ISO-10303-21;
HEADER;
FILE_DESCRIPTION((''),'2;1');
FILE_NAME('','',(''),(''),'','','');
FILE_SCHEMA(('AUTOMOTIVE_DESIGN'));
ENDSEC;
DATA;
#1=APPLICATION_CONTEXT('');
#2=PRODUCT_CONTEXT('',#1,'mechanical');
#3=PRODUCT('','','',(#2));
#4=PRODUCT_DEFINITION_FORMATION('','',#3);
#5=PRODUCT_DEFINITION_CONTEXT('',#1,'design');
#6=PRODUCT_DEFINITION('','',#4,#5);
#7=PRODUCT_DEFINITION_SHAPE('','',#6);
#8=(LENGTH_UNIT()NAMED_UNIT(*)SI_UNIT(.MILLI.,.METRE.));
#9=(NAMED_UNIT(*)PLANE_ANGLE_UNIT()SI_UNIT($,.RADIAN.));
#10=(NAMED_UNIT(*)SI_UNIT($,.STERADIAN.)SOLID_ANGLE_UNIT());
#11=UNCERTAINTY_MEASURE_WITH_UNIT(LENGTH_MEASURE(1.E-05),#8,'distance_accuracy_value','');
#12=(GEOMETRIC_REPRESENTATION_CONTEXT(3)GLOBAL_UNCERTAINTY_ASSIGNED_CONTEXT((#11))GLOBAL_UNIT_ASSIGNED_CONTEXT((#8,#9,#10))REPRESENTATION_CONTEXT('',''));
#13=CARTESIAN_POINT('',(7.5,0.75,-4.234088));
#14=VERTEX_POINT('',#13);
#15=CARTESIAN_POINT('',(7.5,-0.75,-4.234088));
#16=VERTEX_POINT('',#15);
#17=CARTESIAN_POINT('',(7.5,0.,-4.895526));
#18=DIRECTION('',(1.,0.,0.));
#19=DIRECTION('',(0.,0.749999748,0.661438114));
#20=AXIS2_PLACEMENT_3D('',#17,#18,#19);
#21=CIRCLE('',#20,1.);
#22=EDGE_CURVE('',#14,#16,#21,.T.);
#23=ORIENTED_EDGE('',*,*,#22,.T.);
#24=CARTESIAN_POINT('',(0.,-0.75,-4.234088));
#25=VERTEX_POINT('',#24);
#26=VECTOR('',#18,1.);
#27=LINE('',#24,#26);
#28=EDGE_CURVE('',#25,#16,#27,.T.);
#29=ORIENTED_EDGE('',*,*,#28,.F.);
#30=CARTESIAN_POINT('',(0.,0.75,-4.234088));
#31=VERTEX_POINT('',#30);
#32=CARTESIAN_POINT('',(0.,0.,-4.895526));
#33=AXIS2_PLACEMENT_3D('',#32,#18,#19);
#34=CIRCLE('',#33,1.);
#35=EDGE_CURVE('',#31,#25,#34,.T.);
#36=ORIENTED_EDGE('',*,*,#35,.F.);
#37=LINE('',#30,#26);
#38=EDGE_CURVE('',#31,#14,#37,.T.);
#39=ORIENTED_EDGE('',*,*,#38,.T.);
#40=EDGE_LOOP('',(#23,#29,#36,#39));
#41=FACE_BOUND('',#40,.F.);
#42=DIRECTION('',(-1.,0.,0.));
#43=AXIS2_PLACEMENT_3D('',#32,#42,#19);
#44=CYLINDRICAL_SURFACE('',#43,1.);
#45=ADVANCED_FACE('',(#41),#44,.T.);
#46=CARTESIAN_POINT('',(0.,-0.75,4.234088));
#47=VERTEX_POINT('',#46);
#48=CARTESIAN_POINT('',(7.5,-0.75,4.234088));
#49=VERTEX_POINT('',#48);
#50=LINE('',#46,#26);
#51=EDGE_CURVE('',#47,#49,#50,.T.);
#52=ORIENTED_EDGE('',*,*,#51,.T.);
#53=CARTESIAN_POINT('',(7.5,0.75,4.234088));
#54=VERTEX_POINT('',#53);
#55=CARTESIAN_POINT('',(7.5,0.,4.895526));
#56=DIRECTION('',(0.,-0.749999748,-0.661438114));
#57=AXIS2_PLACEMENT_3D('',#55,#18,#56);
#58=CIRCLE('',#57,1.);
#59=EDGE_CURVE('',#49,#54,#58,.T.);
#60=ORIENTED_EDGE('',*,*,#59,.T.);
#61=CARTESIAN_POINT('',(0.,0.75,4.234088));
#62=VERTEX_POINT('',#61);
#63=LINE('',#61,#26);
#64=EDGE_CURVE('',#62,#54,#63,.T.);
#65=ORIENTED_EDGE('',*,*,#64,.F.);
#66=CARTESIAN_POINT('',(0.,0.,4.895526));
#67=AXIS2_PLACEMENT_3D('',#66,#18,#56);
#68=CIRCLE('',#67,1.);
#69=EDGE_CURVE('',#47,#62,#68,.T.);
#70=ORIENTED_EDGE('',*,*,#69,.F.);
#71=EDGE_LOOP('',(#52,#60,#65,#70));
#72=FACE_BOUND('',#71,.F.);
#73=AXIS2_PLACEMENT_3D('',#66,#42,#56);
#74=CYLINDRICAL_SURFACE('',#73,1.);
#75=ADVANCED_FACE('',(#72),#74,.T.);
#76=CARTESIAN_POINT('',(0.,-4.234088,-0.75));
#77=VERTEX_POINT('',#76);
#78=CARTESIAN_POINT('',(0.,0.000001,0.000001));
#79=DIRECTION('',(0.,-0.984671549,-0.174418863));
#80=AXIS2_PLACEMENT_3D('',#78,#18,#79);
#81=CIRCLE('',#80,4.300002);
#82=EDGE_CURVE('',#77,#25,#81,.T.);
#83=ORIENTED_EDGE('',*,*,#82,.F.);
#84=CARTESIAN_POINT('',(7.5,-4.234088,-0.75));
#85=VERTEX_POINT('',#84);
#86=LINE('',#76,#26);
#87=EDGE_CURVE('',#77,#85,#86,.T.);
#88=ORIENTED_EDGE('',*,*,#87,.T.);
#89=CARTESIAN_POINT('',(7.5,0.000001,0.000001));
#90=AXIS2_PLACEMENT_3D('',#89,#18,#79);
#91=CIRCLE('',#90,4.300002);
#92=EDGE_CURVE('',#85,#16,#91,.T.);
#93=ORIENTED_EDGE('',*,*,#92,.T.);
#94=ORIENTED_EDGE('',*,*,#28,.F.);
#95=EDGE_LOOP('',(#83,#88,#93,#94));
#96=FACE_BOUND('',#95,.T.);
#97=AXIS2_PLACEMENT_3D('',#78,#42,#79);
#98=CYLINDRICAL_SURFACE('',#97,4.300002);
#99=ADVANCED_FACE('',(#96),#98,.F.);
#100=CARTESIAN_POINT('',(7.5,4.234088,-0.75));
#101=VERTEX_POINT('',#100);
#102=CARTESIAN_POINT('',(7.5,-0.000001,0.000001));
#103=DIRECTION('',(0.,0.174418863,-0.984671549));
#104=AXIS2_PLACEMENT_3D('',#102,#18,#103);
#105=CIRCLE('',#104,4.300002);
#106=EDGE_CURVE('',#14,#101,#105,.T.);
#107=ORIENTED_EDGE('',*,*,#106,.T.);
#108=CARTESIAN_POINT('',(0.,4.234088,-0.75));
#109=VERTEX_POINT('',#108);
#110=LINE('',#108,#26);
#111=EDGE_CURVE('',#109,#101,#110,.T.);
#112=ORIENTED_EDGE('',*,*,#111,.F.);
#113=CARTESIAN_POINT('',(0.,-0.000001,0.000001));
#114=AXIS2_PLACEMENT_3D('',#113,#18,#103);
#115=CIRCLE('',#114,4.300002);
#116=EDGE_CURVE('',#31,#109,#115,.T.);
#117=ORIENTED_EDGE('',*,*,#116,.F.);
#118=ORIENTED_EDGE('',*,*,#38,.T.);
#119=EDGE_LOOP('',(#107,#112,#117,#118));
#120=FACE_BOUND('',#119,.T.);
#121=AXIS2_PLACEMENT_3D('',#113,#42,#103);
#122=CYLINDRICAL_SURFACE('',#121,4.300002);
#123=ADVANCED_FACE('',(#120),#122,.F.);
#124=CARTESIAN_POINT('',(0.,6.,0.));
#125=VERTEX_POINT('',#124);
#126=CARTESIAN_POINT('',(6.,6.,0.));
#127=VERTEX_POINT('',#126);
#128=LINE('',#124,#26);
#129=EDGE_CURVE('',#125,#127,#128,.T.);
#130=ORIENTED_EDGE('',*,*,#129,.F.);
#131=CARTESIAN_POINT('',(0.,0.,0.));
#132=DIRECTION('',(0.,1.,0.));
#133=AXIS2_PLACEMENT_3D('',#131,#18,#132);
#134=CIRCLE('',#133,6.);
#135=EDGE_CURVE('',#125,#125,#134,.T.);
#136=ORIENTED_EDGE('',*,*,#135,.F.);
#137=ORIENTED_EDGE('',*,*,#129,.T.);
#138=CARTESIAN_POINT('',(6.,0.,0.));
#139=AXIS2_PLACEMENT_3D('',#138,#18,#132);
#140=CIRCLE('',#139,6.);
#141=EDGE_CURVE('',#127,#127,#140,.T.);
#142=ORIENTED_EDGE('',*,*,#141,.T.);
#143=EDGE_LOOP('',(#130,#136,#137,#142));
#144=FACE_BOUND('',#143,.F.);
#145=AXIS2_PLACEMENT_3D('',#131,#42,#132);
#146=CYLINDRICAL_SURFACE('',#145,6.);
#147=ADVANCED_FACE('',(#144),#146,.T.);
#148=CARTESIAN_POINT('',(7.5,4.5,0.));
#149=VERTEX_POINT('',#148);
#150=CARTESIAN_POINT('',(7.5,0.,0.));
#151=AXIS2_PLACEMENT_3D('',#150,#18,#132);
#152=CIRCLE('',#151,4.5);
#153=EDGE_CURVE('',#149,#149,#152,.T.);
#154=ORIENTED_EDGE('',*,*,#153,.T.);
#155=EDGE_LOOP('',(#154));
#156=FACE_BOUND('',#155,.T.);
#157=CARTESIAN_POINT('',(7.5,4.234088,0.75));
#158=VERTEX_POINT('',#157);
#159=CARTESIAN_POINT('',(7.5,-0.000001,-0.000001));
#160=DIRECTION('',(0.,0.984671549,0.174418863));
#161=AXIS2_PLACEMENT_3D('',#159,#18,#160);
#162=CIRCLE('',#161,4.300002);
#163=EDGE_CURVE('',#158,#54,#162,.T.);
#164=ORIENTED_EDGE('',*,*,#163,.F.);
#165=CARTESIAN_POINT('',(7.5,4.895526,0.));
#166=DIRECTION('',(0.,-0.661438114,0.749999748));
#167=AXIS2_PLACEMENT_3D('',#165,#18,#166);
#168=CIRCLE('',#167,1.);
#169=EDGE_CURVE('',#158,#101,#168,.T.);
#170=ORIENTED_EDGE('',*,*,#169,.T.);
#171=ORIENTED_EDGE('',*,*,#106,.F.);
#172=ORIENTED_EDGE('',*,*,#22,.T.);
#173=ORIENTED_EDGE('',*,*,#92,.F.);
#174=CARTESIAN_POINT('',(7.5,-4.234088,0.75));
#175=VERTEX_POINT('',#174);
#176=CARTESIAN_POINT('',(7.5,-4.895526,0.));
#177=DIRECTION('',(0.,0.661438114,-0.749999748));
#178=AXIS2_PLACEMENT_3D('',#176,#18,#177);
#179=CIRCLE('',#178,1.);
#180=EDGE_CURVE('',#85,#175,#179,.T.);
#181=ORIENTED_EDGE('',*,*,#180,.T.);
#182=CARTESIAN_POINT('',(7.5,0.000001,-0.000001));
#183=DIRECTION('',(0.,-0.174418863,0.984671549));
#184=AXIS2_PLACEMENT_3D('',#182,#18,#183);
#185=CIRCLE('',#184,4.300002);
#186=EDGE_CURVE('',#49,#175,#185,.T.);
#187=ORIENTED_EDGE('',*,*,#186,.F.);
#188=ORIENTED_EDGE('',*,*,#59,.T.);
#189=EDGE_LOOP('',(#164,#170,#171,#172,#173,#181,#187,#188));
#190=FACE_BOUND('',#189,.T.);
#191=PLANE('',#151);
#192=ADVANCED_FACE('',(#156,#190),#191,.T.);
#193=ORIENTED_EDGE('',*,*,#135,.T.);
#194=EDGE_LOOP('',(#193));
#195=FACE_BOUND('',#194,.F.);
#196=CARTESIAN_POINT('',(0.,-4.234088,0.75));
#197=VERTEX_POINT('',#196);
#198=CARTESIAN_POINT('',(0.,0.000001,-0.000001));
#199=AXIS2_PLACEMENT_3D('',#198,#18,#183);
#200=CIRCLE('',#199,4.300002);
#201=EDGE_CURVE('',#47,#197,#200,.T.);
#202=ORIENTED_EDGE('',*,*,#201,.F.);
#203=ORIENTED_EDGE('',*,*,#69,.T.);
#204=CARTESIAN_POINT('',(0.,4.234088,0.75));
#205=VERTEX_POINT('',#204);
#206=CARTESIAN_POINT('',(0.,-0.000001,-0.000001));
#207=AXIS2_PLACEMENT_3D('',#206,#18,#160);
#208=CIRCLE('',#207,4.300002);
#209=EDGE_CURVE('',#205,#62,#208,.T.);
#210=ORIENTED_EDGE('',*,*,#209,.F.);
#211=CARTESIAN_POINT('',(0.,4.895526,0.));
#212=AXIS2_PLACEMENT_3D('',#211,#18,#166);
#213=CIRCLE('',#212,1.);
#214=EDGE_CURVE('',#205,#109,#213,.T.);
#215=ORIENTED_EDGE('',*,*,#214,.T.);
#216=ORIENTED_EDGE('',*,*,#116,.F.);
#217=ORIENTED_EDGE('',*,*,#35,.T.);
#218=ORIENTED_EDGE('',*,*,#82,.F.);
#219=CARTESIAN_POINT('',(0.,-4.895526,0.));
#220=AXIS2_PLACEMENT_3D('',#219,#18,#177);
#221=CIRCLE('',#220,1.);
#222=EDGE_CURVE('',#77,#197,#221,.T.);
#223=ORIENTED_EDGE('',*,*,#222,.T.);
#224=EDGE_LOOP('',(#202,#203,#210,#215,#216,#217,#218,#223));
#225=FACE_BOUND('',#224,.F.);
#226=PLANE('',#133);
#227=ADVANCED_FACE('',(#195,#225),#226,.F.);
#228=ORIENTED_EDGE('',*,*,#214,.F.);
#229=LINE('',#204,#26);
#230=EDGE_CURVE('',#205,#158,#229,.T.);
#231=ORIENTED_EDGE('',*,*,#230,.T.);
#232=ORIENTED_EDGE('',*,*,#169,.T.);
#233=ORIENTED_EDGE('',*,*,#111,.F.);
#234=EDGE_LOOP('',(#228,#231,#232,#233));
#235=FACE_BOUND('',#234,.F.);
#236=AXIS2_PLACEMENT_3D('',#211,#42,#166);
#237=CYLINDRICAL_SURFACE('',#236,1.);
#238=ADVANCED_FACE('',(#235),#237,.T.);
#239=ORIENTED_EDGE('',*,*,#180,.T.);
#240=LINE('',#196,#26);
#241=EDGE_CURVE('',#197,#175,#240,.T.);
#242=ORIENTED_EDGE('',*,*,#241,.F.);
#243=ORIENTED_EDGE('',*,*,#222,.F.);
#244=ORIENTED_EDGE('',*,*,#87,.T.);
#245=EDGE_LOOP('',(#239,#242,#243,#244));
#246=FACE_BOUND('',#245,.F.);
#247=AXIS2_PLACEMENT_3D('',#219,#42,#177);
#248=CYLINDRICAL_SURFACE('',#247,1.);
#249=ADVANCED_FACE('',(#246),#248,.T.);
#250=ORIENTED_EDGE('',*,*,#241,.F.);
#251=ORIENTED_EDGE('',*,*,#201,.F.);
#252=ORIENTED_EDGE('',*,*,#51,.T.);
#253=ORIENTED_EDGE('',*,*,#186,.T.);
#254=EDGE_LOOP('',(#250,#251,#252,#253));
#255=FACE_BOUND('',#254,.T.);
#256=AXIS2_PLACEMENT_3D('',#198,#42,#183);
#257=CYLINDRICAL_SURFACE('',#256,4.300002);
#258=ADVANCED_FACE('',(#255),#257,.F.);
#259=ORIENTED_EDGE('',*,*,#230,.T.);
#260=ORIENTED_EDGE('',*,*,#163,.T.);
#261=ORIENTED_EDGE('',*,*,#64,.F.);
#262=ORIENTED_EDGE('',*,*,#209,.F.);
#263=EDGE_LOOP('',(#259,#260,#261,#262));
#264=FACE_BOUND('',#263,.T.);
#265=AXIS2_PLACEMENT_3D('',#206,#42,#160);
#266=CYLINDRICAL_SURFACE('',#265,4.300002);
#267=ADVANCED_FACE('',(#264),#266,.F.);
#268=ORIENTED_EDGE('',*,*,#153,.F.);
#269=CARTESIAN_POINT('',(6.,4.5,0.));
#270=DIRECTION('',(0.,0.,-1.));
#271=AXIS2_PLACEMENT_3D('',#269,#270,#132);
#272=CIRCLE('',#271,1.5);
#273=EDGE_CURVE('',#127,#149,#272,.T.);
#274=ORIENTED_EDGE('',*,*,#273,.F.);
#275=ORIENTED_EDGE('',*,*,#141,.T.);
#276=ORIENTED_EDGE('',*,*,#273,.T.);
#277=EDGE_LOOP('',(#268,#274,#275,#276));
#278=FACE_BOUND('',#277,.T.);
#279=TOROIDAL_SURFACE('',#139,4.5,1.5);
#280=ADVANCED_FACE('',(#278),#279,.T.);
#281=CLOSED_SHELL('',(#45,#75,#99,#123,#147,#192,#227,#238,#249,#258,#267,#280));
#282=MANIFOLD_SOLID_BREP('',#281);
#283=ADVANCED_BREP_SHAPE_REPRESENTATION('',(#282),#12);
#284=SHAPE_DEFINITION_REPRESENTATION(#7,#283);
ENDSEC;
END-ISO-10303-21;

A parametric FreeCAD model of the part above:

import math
import FreeCAD as App
import Part
import Sketcher
from FreeCAD import Vector
Q = App.Units.Quantity


def edges_at(feature, points):
    """Names of the edges that pass closest to the given points."""
    edges = feature.Shape.Edges
    near = lambda p: min(range(len(edges)), key=lambda i: edges[i].distToShape(Part.Vertex(*p))[0])
    return sorted({f"Edge{near(p) + 1}" for p in points})

doc = App.newDocument("Part")
body = doc.addObject("PartDesign::Body", "Body")

sketch1 = doc.addObject("Sketcher::SketchObject", "Sketch")
body.addObject(sketch1)
sketch1.AttachmentSupport = (doc.YZ_Plane, [""])
sketch1.MapMode = "FlatFace"
sketch1.addGeometry([
    Part.Circle(Vector(0, 0, 0), Vector(0, 0, 1), 6),
    Part.ArcOfCircle(Part.Circle(Vector(0, 0, 0), Vector(0, 0, 1), 4.3), math.radians(100), math.radians(170)),
    Part.ArcOfCircle(Part.Circle(Vector(0, 4.9, 0), Vector(0, 0, 1), 1), math.radians(-139), math.radians(-41)),
    Part.ArcOfCircle(Part.Circle(Vector(0, 0, 0), Vector(0, 0, 1), 4.3), math.radians(10), math.radians(80)),
    Part.ArcOfCircle(Part.Circle(Vector(4.9, 0, 0), Vector(0, 0, 1), 1), math.radians(131), math.radians(229)),
    Part.ArcOfCircle(Part.Circle(Vector(0, 0, 0), Vector(0, 0, 1), 4.3), math.radians(-80), math.radians(-10)),
    Part.ArcOfCircle(Part.Circle(Vector(0, -4.9, 0), Vector(0, 0, 1), 1), math.radians(41), math.radians(139)),
    Part.ArcOfCircle(Part.Circle(Vector(0, 0, 0), Vector(0, 0, 1), 4.3), math.radians(-170), math.radians(-100)),
    Part.ArcOfCircle(Part.Circle(Vector(-4.9, 0, 0), Vector(0, 0, 1), 1), math.radians(-49), math.radians(49)),
], False)
sketch1.addConstraint([
    Sketcher.Constraint("Coincident", 1, 1, 2, 1),
    Sketcher.Constraint("Coincident", 2, 2, 3, 2),
    Sketcher.Constraint("Coincident", 3, 1, 4, 1),
    Sketcher.Constraint("Coincident", 4, 2, 5, 2),
    Sketcher.Constraint("Coincident", 5, 1, 6, 1),
    Sketcher.Constraint("Coincident", 6, 2, 7, 2),
    Sketcher.Constraint("Coincident", 7, 1, 8, 1),
    Sketcher.Constraint("Coincident", 8, 2, 1, 2),
    Sketcher.Constraint("Coincident", 0, 3, -1, 1),
    Sketcher.Constraint("Coincident", 1, 3, -1, 1),
    Sketcher.Constraint("Coincident", 3, 3, -1, 1),
    Sketcher.Constraint("Coincident", 5, 3, -1, 1),
    Sketcher.Constraint("Coincident", 7, 3, -1, 1),
    Sketcher.Constraint("Equal", 1, 3),
    Sketcher.Constraint("Equal", 2, 4),
    Sketcher.Constraint("Equal", 3, 5),
    Sketcher.Constraint("Equal", 4, 6),
    Sketcher.Constraint("Equal", 5, 7),
    Sketcher.Constraint("Equal", 6, 8),
    Sketcher.Constraint("Symmetric", 2, 3, 6, 3, -1, 1),
    Sketcher.Constraint("Symmetric", 4, 3, 8, 3, -1, 1),
    Sketcher.Constraint("PointOnObject", 2, 3, -2),
    Sketcher.Constraint("PointOnObject", 4, 3, -1),
    Sketcher.Constraint("Diameter", 0, Q("12 mm")),
    Sketcher.Constraint("Radius", 2, Q("1 mm")),
    Sketcher.Constraint("Radius", 1, Q("4.300002 mm")),
    Sketcher.Constraint("DistanceX", 1, 1, 2, 2, Q("1.5 mm")),
    Sketcher.Constraint("DistanceY", 4, 2, 3, 1, Q("1.5 mm")),
])
pad1 = doc.addObject("PartDesign::Pad", "Pad")
body.addObject(pad1)
pad1.Profile = sketch1
pad1.Length = 7.5
doc.recompute()

fillet = doc.addObject("PartDesign::Fillet", "Fillet")
body.addObject(fillet)
fillet.Base = (pad1, edges_at(pad1, [(7.5, -6, 0)]))
fillet.Radius = 1.5

doc.recompute()
